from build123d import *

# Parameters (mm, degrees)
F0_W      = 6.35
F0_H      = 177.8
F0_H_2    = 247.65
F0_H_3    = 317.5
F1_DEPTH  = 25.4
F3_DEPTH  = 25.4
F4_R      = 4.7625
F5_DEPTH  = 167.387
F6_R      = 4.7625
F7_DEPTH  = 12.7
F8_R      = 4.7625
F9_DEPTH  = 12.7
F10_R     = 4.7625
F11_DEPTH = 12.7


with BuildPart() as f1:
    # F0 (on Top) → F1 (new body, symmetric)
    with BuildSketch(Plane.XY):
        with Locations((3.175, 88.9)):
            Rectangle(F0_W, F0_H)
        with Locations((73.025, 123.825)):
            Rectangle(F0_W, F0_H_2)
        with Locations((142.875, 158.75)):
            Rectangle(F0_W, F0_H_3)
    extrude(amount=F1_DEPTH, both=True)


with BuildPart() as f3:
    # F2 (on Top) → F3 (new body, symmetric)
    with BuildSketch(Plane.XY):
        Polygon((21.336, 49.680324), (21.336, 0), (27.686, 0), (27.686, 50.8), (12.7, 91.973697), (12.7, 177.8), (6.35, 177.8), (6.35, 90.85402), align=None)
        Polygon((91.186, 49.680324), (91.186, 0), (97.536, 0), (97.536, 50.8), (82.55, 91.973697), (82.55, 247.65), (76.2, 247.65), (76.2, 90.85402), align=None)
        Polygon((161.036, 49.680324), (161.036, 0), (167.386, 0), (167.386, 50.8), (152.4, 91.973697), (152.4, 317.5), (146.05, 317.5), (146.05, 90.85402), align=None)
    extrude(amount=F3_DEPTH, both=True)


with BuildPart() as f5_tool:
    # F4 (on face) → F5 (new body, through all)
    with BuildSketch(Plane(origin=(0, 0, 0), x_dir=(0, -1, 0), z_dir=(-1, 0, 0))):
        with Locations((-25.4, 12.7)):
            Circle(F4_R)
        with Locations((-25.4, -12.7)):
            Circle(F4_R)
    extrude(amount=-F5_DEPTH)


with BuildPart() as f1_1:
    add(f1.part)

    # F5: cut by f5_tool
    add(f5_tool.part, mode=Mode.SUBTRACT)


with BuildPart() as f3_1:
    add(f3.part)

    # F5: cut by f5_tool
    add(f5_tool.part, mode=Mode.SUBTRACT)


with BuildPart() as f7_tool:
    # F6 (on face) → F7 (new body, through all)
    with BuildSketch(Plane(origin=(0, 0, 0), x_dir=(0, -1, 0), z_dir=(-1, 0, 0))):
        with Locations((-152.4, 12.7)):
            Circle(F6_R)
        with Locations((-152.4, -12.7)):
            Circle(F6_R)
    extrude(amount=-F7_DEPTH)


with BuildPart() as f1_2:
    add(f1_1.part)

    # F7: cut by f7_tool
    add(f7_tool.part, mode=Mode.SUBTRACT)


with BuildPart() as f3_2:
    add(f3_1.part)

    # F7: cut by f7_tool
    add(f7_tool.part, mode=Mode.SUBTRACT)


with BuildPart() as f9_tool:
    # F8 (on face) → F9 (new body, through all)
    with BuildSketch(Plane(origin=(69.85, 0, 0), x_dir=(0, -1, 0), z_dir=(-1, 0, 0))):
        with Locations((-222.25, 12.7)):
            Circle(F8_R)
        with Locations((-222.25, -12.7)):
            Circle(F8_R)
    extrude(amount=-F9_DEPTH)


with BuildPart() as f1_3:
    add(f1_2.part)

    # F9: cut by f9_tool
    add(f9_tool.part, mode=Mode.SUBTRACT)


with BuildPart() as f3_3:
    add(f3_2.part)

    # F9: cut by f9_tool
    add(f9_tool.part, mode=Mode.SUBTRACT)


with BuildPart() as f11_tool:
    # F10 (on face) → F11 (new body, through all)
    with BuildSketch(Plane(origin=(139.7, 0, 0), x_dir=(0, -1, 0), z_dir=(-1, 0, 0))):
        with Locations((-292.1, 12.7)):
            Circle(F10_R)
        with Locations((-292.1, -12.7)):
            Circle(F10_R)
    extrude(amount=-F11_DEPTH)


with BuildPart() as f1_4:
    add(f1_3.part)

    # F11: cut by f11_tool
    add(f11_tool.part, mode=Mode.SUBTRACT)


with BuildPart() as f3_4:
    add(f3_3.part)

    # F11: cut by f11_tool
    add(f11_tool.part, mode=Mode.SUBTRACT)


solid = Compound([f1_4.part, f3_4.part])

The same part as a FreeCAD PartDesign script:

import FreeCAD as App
import Part
import Sketcher
Q = App.Units.Quantity


def add_polygon(sketch, points):
    """Adds a closed chain of lines whose ends are joined by coincident constraints."""
    first, n = sketch.GeometryCount, len(points)
    for a, b in zip(points, points[1:] + points[:1]):
        sketch.addGeometry(Part.LineSegment(App.Vector(*a, 0), App.Vector(*b, 0)), False)
    for i in range(n):
        sketch.addConstraint(Sketcher.Constraint("Coincident", first + i, 2, first + (i + 1) % n, 1))

doc = App.newDocument("Part")
body = doc.addObject("PartDesign::Body", "Body")
body.AllowCompound = True

# Sketch on XY plane
sketch1 = doc.addObject("Sketcher::SketchObject", "Sketch")
body.addObject(sketch1)
sketch1.AttachmentSupport = (doc.XY_Plane, [""])
sketch1.MapMode = "FlatFace"
add_polygon(sketch1, [(0, 178), (0, 0), (6, 0), (6, 178)])  # lines 0-3
add_polygon(sketch1, [(70, 248), (70, 0), (76, 0), (76, 248)])  # lines 4-7
add_polygon(sketch1, [(140, 318), (140, 0), (146, 0), (146, 318)])  # lines 8-11
sketch1.addConstraint(Sketcher.Constraint("Vertical", 0))
sketch1.addConstraint(Sketcher.Constraint("Horizontal", 1))
sketch1.addConstraint(Sketcher.Constraint("Vertical", 2))
sketch1.addConstraint(Sketcher.Constraint("Horizontal", 3))
sketch1.addConstraint(Sketcher.Constraint("Vertical", 4))
sketch1.addConstraint(Sketcher.Constraint("Horizontal", 5))
sketch1.addConstraint(Sketcher.Constraint("Vertical", 6))
sketch1.addConstraint(Sketcher.Constraint("Horizontal", 7))
sketch1.addConstraint(Sketcher.Constraint("Vertical", 8))
sketch1.addConstraint(Sketcher.Constraint("Horizontal", 9))
sketch1.addConstraint(Sketcher.Constraint("Vertical", 10))
sketch1.addConstraint(Sketcher.Constraint("Horizontal", 11))
sketch1.addConstraint(Sketcher.Constraint("Coincident", 0, 2, -1, 1))
sketch1.addConstraint(Sketcher.Constraint("PointOnObject", 4, 2, -1))
sketch1.addConstraint(Sketcher.Constraint("PointOnObject", 8, 2, -1))
sketch1.addConstraint(Sketcher.Constraint("Equal", 3, 5))
sketch1.addConstraint(Sketcher.Constraint("Equal", 7, 9))
sketch1.addConstraint(Sketcher.Constraint("DistanceY", 0, 2, 0, 1, Q("7 in")))
sketch1.addConstraint(Sketcher.Constraint("DistanceY", 8, 2, 8, 1, Q("12.5 in")))
sketch1.addConstraint(Sketcher.Constraint("DistanceX", -1, 1, 5, 2, Q("3 in")))
sketch1.addConstraint(Sketcher.Constraint("DistanceX", 4, 2, 9, 2, Q("3 in")))
sketch1.addConstraint(Sketcher.Constraint("DistanceX", 1, 1, 1, 2, Q("0.25 in")))
sketch1.addConstraint(Sketcher.Constraint("DistanceY", 4, 2, 4, 1, Q("9.75 in")))
pad1 = doc.addObject("PartDesign::Pad", "Pad")
body.addObject(pad1)
pad1.Profile = sketch1
pad1.Length = Q("2 in")
pad1.Midplane = True
body2 = doc.addObject("PartDesign::Body", "Body001")
body2.AllowCompound = True

# Sketch on XY plane
sketch2 = doc.addObject("Sketcher::SketchObject", "Sketch001")
body2.addObject(sketch2)
sketch2.AttachmentSupport = (doc.getObject("XY_Plane001"), [""])
sketch2.MapMode = "FlatFace"
add_polygon(sketch2, [(21, 50), (21, 0), (28, 0), (28, 51), (13, 92), (13, 178), (6, 178), (6, 91)])  # lines 0-7
add_polygon(sketch2, [(91, 50), (91, 0), (98, 0), (98, 51), (83, 92), (83, 248), (76, 248), (76, 91)])  # lines 8-15
add_polygon(sketch2, [(161, 50), (161, 0), (167, 0), (167, 51), (152, 92), (152, 318), (146, 318), (146, 91)])  # lines 16-23
sketch2.addConstraint(Sketcher.Constraint("Vertical", 0))
sketch2.addConstraint(Sketcher.Constraint("Horizontal", 1))
sketch2.addConstraint(Sketcher.Constraint("Vertical", 2))
sketch2.addConstraint(Sketcher.Constraint("Vertical", 4))
sketch2.addConstraint(Sketcher.Constraint("Horizontal", 5))
sketch2.addConstraint(Sketcher.Constraint("Vertical", 6))
sketch2.addConstraint(Sketcher.Constraint("Vertical", 8))
sketch2.addConstraint(Sketcher.Constraint("Horizontal", 9))
sketch2.addConstraint(Sketcher.Constraint("Vertical", 10))
sketch2.addConstraint(Sketcher.Constraint("Vertical", 12))
sketch2.addConstraint(Sketcher.Constraint("Horizontal", 13))
sketch2.addConstraint(Sketcher.Constraint("Vertical", 14))
sketch2.addConstraint(Sketcher.Constraint("Vertical", 16))
sketch2.addConstraint(Sketcher.Constraint("Horizontal", 17))
sketch2.addConstraint(Sketcher.Constraint("Vertical", 18))
sketch2.addConstraint(Sketcher.Constraint("Vertical", 20))
sketch2.addConstraint(Sketcher.Constraint("Horizontal", 21))
sketch2.addConstraint(Sketcher.Constraint("Vertical", 22))
sketch2.addConstraint(Sketcher.Constraint("PointOnObject", 0, 2, -1))
sketch2.addConstraint(Sketcher.Constraint("PointOnObject", 8, 2, -1))
sketch2.addConstraint(Sketcher.Constraint("PointOnObject", 16, 2, -1))
sketch2.addConstraint(Sketcher.Constraint("Parallel", 3, 7))
sketch2.addConstraint(Sketcher.Constraint("Parallel", 7, 11))
sketch2.addConstraint(Sketcher.Constraint("Parallel", 11, 15))
sketch2.addConstraint(Sketcher.Constraint("Parallel", 15, 19))
sketch2.addConstraint(Sketcher.Constraint("Parallel", 19, 23))
sketch2.addConstraint(Sketcher.Constraint("Horizontal", 2, 2, 10, 2))
sketch2.addConstraint(Sketcher.Constraint("Horizontal", 3, 2, 11, 2))
sketch2.addConstraint(Sketcher.Constraint("Horizontal", 6, 2, 14, 2))
sketch2.addConstraint(Sketcher.Constraint("Horizontal", 7, 2, 15, 2))
sketch2.addConstraint(Sketcher.Constraint("Horizontal", 10, 2, 18, 2))
sketch2.addConstraint(Sketcher.Constraint("Horizontal", 11, 2, 19, 2))
sketch2.addConstraint(Sketcher.Constraint("Horizontal", 14, 2, 22, 2))
sketch2.addConstraint(Sketcher.Constraint("Horizontal", 15, 2, 23, 2))
sketch2.addConstraint(Sketcher.Constraint("Equal", 1, 5))
sketch2.addConstraint(Sketcher.Constraint("Equal", 5, 9))
sketch2.addConstraint(Sketcher.Constraint("Equal", 13, 17))
sketch2.addConstraint(Sketcher.Constraint("DistanceY", 2, 1, 2, 2, Q("2 in")))
sketch2.addConstraint(Sketcher.Constraint("DistanceY", -1, 1, 4, 2, Q("7 in")))
sketch2.addConstraint(Sketcher.Constraint("DistanceX", -1, 1, 13, 2, Q("3 in")))
sketch2.addConstraint(Sketcher.Constraint("DistanceX", -1, 1, 19, 2, Q("6 in")))
sketch2.addConstraint(Sketcher.Constraint("Angle", 3, Q("110 deg")))
sketch2.addConstraint(Sketcher.Constraint("DistanceX", 0, 2, 9, 2, Q("3 in")))
sketch2.addConstraint(Sketcher.Constraint("DistanceX", 1, 1, 1, 2, Q("0.25 in")))
sketch2.addConstraint(Sketcher.Constraint("DistanceY", -1, 1, 20, 2, Q("12.5 in")))
sketch2.addConstraint(Sketcher.Constraint("DistanceX", -1, 1, 0, 2, Q("0.84 in")))
sketch2.addConstraint(Sketcher.Constraint("DistanceY", -1, 1, 12, 2, Q("9.75 in")))
sketch2.addConstraint(Sketcher.Constraint("DistanceY", 6, 2, 6, 1, 86.94598))
pad2 = doc.addObject("PartDesign::Pad", "Pad001")
body2.addObject(pad2)
pad2.Profile = sketch2
pad2.Length = Q("2 in")
pad2.Midplane = True
body3 = doc.addObject("PartDesign::Body", "Body002")
body3.AllowCompound = True

# Sketch on YZ plane
sketch3 = doc.addObject("Sketcher::SketchObject", "Sketch002")
body3.addObject(sketch3)
sketch3.AttachmentSupport = (doc.getObject("YZ_Plane002"), [""])
sketch3.MapMode = "FlatFace"
sketch3.addGeometry(Part.Circle(App.Vector(25.4, 12.7, 0), App.Vector(0, 0, 1), 4.8), False)
sketch3.addGeometry(Part.Circle(App.Vector(25.4, -12.7, 0), App.Vector(0, 0, 1), 4.8), False)
sketch3.addConstraint(Sketcher.Constraint("Equal", 0, 1))
sketch3.addConstraint(Sketcher.Constraint("Symmetric", 0, 3, 1, 3, -1))
sketch3.addConstraint(Sketcher.Constraint("Diameter", 0, Q("0.375 in")))
sketch3.addConstraint(Sketcher.Constraint("DistanceX", -1, 1, 0, 3, Q("1 in")))
sketch3.addConstraint(Sketcher.Constraint("DistanceY", 1, 3, 0, 3, Q("1 in")))
pad3 = doc.addObject("PartDesign::Pad", "Pad002")
body3.addObject(pad3)
pad3.Profile = sketch3
pad3.Length = 167.387
body.AllowCompound = True
doc.recompute()

body4 = doc.addObject("PartDesign::Body", "Body003")
body4.BaseFeature = body3
boolean = doc.addObject("PartDesign::Boolean", "Boolean")
body.addObject(boolean)
boolean.Type = "Cut"
boolean.addObjects([body4])
doc.recompute()
body2.AllowCompound = True
doc.recompute()

boolean2 = doc.addObject("PartDesign::Boolean", "Boolean001")
body2.addObject(boolean2)
boolean2.Type = "Cut"
boolean2.addObjects([body3])
body5 = doc.addObject("PartDesign::Body", "Body004")
body5.AllowCompound = True

# Sketch on YZ plane
sketch4 = doc.addObject("Sketcher::SketchObject", "Sketch003")
body5.addObject(sketch4)
sketch4.AttachmentSupport = (doc.getObject("YZ_Plane004"), [""])
sketch4.MapMode = "FlatFace"
sketch4.addGeometry(Part.Circle(App.Vector(152.4, 12.7, 0), App.Vector(0, 0, 1), 4.8), False)
sketch4.addGeometry(Part.Circle(App.Vector(152.4, -12.7, 0), App.Vector(0, 0, 1), 4.8), False)
sketch4.addConstraint(Sketcher.Constraint("Equal", 0, 1))
sketch4.addConstraint(Sketcher.Constraint("Symmetric", 0, 3, 1, 3, -1))
sketch4.addConstraint(Sketcher.Constraint("Diameter", 0, Q("0.375 in")))
sketch4.addConstraint(Sketcher.Constraint("DistanceX", -1, 1, 0, 3, Q("6 in")))
sketch4.addConstraint(Sketcher.Constraint("DistanceY", 1, 3, 0, 3, Q("1 in")))
pad4 = doc.addObject("PartDesign::Pad", "Pad003")
body5.addObject(pad4)
pad4.Profile = sketch4
pad4.Length = Q("0.5 in")
body.AllowCompound = True
doc.recompute()

body6 = doc.addObject("PartDesign::Body", "Body005")
body6.BaseFeature = body5
boolean3 = doc.addObject("PartDesign::Boolean", "Boolean002")
body.addObject(boolean3)
boolean3.Type = "Cut"
boolean3.addObjects([body6])
doc.recompute()
body2.AllowCompound = True
doc.recompute()

boolean4 = doc.addObject("PartDesign::Boolean", "Boolean003")
body2.addObject(boolean4)
boolean4.Type = "Cut"
boolean4.addObjects([body5])
body7 = doc.addObject("PartDesign::Body", "Body006")
body7.AllowCompound = True

# Sketch on YZ plane
sketch5 = doc.addObject("Sketcher::SketchObject", "Sketch004")
body7.addObject(sketch5)
sketch5.AttachmentSupport = (doc.getObject("YZ_Plane006"), [""])
sketch5.MapMode = "FlatFace"
sketch5.AttachmentOffset = App.Placement(App.Vector(0, 0, 2.75 * 25.4), App.Rotation())
sketch5.addGeometry(Part.Circle(App.Vector(222.2, 12.7, 0), App.Vector(0, 0, 1), 4.8), False)
sketch5.addGeometry(Part.Circle(App.Vector(222.2, -12.7, 0), App.Vector(0, 0, 1), 4.8), False)
sketch5.addConstraint(Sketcher.Constraint("Equal", 0, 1))
sketch5.addConstraint(Sketcher.Constraint("Symmetric", 0, 3, 1, 3, -1))
sketch5.addConstraint(Sketcher.Constraint("Diameter", 0, Q("0.375 in")))
sketch5.addConstraint(Sketcher.Constraint("DistanceY", 1, 3, 0, 3, Q("1 in")))
sketch5.addConstraint(Sketcher.Constraint("DistanceX", -1, 1, 0, 3, Q("8.75 in")))
pad5 = doc.addObject("PartDesign::Pad", "Pad004")
body7.addObject(pad5)
pad5.Profile = sketch5
pad5.Length = Q("0.5 in")
body.AllowCompound = True
doc.recompute()

body8 = doc.addObject("PartDesign::Body", "Body007")
body8.BaseFeature = body7
boolean5 = doc.addObject("PartDesign::Boolean", "Boolean004")
body.addObject(boolean5)
boolean5.Type = "Cut"
boolean5.addObjects([body8])
doc.recompute()
body2.AllowCompound = True
doc.recompute()

boolean6 = doc.addObject("PartDesign::Boolean", "Boolean005")
body2.addObject(boolean6)
boolean6.Type = "Cut"
boolean6.addObjects([body7])
body9 = doc.addObject("PartDesign::Body", "Body008")
body9.AllowCompound = True

# Sketch on YZ plane
sketch6 = doc.addObject("Sketcher::SketchObject", "Sketch005")
body9.addObject(sketch6)
sketch6.AttachmentSupport = (doc.getObject("YZ_Plane008"), [""])
sketch6.MapMode = "FlatFace"
sketch6.AttachmentOffset = App.Placement(App.Vector(0, 0, 5.5 * 25.4), App.Rotation())
sketch6.addGeometry(Part.Circle(App.Vector(292.1, 12.7, 0), App.Vector(0, 0, 1), 4.8), False)
sketch6.addGeometry(Part.Circle(App.Vector(292.1, -12.7, 0), App.Vector(0, 0, 1), 4.8), False)
sketch6.addConstraint(Sketcher.Constraint("Equal", 0, 1))
sketch6.addConstraint(Sketcher.Constraint("Symmetric", 0, 3, 1, 3, -1))
sketch6.addConstraint(Sketcher.Constraint("Diameter", 0, Q("0.375 in")))
sketch6.addConstraint(Sketcher.Constraint("DistanceY", 1, 3, 0, 3, Q("1 in")))
sketch6.addConstraint(Sketcher.Constraint("DistanceX", -1, 1, 0, 3, Q("11.5 in")))
pad6 = doc.addObject("PartDesign::Pad", "Pad005")
body9.addObject(pad6)
pad6.Profile = sketch6
pad6.Length = Q("0.5 in")
body.AllowCompound = True
doc.recompute()

body10 = doc.addObject("PartDesign::Body", "Body009")
body10.BaseFeature = body9
boolean7 = doc.addObject("PartDesign::Boolean", "Boolean006")
body.addObject(boolean7)
boolean7.Type = "Cut"
boolean7.addObjects([body10])
doc.recompute()
body2.AllowCompound = True
doc.recompute()

boolean8 = doc.addObject("PartDesign::Boolean", "Boolean007")
body2.addObject(boolean8)
boolean8.Type = "Cut"
boolean8.addObjects([body9])

doc.recompute()
